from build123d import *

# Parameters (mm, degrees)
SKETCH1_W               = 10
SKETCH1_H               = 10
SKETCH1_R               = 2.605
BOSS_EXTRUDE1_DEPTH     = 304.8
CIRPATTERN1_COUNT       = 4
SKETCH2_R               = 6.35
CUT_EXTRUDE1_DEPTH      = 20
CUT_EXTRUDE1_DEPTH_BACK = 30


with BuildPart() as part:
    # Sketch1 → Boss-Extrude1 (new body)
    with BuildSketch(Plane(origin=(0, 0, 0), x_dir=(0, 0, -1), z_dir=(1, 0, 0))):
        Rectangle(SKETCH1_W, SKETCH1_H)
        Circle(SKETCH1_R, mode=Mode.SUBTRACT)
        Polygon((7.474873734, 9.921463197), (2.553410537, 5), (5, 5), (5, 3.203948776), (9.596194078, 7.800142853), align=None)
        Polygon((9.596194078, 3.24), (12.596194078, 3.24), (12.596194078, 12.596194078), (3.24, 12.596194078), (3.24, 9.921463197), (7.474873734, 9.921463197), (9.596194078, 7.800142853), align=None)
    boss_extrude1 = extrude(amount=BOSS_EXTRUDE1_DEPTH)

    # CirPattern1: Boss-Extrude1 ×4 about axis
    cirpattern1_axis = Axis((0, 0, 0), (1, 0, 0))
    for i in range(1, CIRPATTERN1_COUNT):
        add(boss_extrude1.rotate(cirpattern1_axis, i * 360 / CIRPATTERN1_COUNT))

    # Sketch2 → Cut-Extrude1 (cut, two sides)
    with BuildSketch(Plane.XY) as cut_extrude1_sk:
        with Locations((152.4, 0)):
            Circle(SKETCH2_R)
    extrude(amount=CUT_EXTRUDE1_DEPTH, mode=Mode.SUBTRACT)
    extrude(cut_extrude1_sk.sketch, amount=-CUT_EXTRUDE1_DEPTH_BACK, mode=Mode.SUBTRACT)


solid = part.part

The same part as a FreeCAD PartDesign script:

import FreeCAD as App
import Part
import Sketcher
from FreeCAD import Vector
Q = App.Units.Quantity


def add_polygon(sketch, points):
    """Adds a closed chain of lines whose ends are joined by coincident constraints."""
    first, n = sketch.GeometryCount, len(points)
    for a, b in zip(points, points[1:] + points[:1]):
        sketch.addGeometry(Part.LineSegment(App.Vector(*a, 0), App.Vector(*b, 0)), False)
    for i in range(n):
        sketch.addConstraint(Sketcher.Constraint("Coincident", first + i, 2, first + (i + 1) % n, 1))

doc = App.newDocument("Part")
body = doc.addObject("PartDesign::Body", "Body")

# Sketch on YZ plane
sketch1 = body.newObject("Sketcher::SketchObject", "Sketch")
sketch1.AttachmentSupport = (doc.getObject("YZ_Plane"), [""])
sketch1.MapMode = "FlatFace"
add_polygon(sketch1, [(5, 5), (-5, 5), (-5, -5), (3.203949, -5), (7.800143, -9.596194), (3.24, -9.596194), (3.24, -12.596194), (12.596194, -12.596194), (12.596194, -3.24), (9.921463, -3.24), (9.921463, -7.474874), (5, -2.553411)])  # lines 0-11
sketch1.addGeometry(Part.Circle(Vector(0, 0, 0), Vector(0, 0, 1), 2.605), False)  # 12
sketch1.addConstraint([
    Sketcher.Constraint("Horizontal", 0),
    Sketcher.Constraint("Vertical", 1),
    Sketcher.Constraint("Horizontal", 2),
    Sketcher.Constraint("Horizontal", 4),
    Sketcher.Constraint("Vertical", 5),
    Sketcher.Constraint("Horizontal", 6),
    Sketcher.Constraint("Vertical", 7),
    Sketcher.Constraint("Horizontal", 8),
    Sketcher.Constraint("Vertical", 9),
    Sketcher.Constraint("Vertical", 11),
    Sketcher.Constraint("Coincident", 12, 3, -1, 1),
    Sketcher.Constraint("Symmetric", 1, 2, 11, 2, -1, 1),
    Sketcher.Constraint("Parallel", 3, 10),
    Sketcher.Constraint("Equal", 0, 1),
    Sketcher.Constraint("Equal", 6, 7),
    Sketcher.Constraint("Diameter", 12, 5.21),
    Sketcher.Constraint("DistanceX", 0, 2, 0, 1, 10.0),
    Sketcher.Constraint("DistanceY", 5, 2, 5, 1, 3.0),
    Sketcher.Constraint("Angle", 3, Q("-45 deg")),
    Sketcher.Constraint("Distance", 3, 6.5),
    Sketcher.Constraint("Distance", 10, 6.96),
    Sketcher.Constraint("DistanceX", -1, 1, 4, 2, 3.24),
    Sketcher.Constraint("DistanceY", 7, 2, -1, 1, 3.24),
    Sketcher.Constraint("DistanceX", 2, 1, 2, 2, 8.203949),
    Sketcher.Constraint("DistanceY", 11, 1, 11, 2, 7.553411),
])
pad1 = body.newObject("PartDesign::Pad", "Pad")
pad1.Profile = sketch1
pad1.Length = 304.8
doc.recompute()

polarpattern = body.newObject("PartDesign::PolarPattern", "PolarPattern")
polarpattern.Originals = [pad1]
polarpattern.Axis = (doc.getObject("X_Axis"), [""])
polarpattern.Angle = 360
polarpattern.Occurrences = 4
body.Tip = polarpattern

# Sketch on XY plane
sketch2 = body.newObject("Sketcher::SketchObject", "Sketch001")
sketch2.AttachmentSupport = (doc.getObject("XY_Plane"), [""])
sketch2.MapMode = "FlatFace"
sketch2.addGeometry(Part.Circle(Vector(152.4, 0, 0), Vector(0, 0, 1), 6.35), False)
sketch2.addConstraint([
    Sketcher.Constraint("PointOnObject", 0, 3, -1),
    Sketcher.Constraint("Diameter", 0, 12.7),
    Sketcher.Constraint("DistanceX", -1, 1, 0, 3, 152.4),
])
pocket1 = body.newObject("PartDesign::Pocket", "Pocket")
pocket1.Profile = sketch2
pocket1.Type = "ThroughAll"
pocket1.Midplane = True

doc.recompute()
